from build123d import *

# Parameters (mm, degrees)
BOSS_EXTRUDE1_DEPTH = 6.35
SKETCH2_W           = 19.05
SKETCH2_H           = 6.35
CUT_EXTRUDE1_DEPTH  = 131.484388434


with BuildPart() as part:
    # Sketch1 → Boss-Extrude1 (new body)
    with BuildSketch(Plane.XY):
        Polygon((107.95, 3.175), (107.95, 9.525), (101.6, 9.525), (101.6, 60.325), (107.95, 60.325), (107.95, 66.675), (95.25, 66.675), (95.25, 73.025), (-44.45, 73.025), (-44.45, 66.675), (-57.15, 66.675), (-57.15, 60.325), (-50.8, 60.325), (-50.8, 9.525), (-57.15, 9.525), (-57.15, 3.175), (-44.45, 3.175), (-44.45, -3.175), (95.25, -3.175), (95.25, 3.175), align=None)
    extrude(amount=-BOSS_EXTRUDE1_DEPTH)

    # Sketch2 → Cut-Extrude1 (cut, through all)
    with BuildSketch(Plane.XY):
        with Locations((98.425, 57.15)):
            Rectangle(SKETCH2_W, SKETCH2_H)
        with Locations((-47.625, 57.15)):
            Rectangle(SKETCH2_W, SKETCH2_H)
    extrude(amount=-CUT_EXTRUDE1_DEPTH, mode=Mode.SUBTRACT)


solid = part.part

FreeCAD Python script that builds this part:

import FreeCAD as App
import Part
import Sketcher
from FreeCAD import Vector
Q = App.Units.Quantity

doc = App.newDocument("Part")
body = doc.addObject("PartDesign::Body", "Body")

sketch1 = body.newObject("Sketcher::SketchObject", "Sketch")
sketch1.AttachmentSupport = (doc.getObject("XY_Plane"), [""])
sketch1.MapMode = "FlatFace"
sketch1.addGeometry(Part.LineSegment(Vector(107.95, 3.175, 0), Vector(107.95, 9.525, 0)), False)
sketch1.addGeometry(Part.LineSegment(Vector(107.95, 9.525, 0), Vector(101.6, 9.525, 0)), False)
sketch1.addGeometry(Part.LineSegment(Vector(101.6, 9.525, 0), Vector(101.6, 60.325, 0)), False)
sketch1.addGeometry(Part.LineSegment(Vector(101.6, 60.325, 0), Vector(107.95, 60.325, 0)), False)
sketch1.addGeometry(Part.LineSegment(Vector(107.95, 60.325, 0), Vector(107.95, 66.675, 0)), False)
sketch1.addGeometry(Part.LineSegment(Vector(107.95, 66.675, 0), Vector(95.25, 66.675, 0)), False)
sketch1.addGeometry(Part.LineSegment(Vector(95.25, 66.675, 0), Vector(95.25, 73.025, 0)), False)
sketch1.addGeometry(Part.LineSegment(Vector(95.25, 73.025, 0), Vector(-44.45, 73.025, 0)), False)
sketch1.addGeometry(Part.LineSegment(Vector(-44.45, 73.025, 0), Vector(-44.45, 66.675, 0)), False)
sketch1.addGeometry(Part.LineSegment(Vector(-44.45, 66.675, 0), Vector(-57.15, 66.675, 0)), False)
sketch1.addGeometry(Part.LineSegment(Vector(-57.15, 66.675, 0), Vector(-57.15, 60.325, 0)), False)
sketch1.addGeometry(Part.LineSegment(Vector(-57.15, 60.325, 0), Vector(-50.8, 60.325, 0)), False)
sketch1.addGeometry(Part.LineSegment(Vector(-50.8, 60.325, 0), Vector(-50.8, 9.525, 0)), False)
sketch1.addGeometry(Part.LineSegment(Vector(-50.8, 9.525, 0), Vector(-57.15, 9.525, 0)), False)
sketch1.addGeometry(Part.LineSegment(Vector(-57.15, 9.525, 0), Vector(-57.15, 3.175, 0)), False)
sketch1.addGeometry(Part.LineSegment(Vector(-57.15, 3.175, 0), Vector(-44.45, 3.175, 0)), False)
sketch1.addGeometry(Part.LineSegment(Vector(-44.45, 3.175, 0), Vector(-44.45, -3.175, 0)), False)
sketch1.addGeometry(Part.LineSegment(Vector(-44.45, -3.175, 0), Vector(95.25, -3.175, 0)), False)
sketch1.addGeometry(Part.LineSegment(Vector(95.25, -3.175, 0), Vector(95.25, 3.175, 0)), False)
sketch1.addGeometry(Part.LineSegment(Vector(95.25, 3.175, 0), Vector(107.95, 3.175, 0)), False)
sketch1.addConstraint(Sketcher.Constraint("Coincident", 0, 2, 1, 1))
sketch1.addConstraint(Sketcher.Constraint("Coincident", 1, 2, 2, 1))
sketch1.addConstraint(Sketcher.Constraint("Coincident", 2, 2, 3, 1))
sketch1.addConstraint(Sketcher.Constraint("Coincident", 3, 2, 4, 1))
sketch1.addConstraint(Sketcher.Constraint("Coincident", 4, 2, 5, 1))
sketch1.addConstraint(Sketcher.Constraint("Coincident", 5, 2, 6, 1))
sketch1.addConstraint(Sketcher.Constraint("Coincident", 6, 2, 7, 1))
sketch1.addConstraint(Sketcher.Constraint("Coincident", 7, 2, 8, 1))
sketch1.addConstraint(Sketcher.Constraint("Coincident", 8, 2, 9, 1))
sketch1.addConstraint(Sketcher.Constraint("Coincident", 9, 2, 10, 1))
sketch1.addConstraint(Sketcher.Constraint("Coincident", 10, 2, 11, 1))
sketch1.addConstraint(Sketcher.Constraint("Coincident", 11, 2, 12, 1))
sketch1.addConstraint(Sketcher.Constraint("Coincident", 12, 2, 13, 1))
sketch1.addConstraint(Sketcher.Constraint("Coincident", 13, 2, 14, 1))
sketch1.addConstraint(Sketcher.Constraint("Coincident", 14, 2, 15, 1))
sketch1.addConstraint(Sketcher.Constraint("Coincident", 15, 2, 16, 1))
sketch1.addConstraint(Sketcher.Constraint("Coincident", 16, 2, 17, 1))
sketch1.addConstraint(Sketcher.Constraint("Coincident", 17, 2, 18, 1))
sketch1.addConstraint(Sketcher.Constraint("Coincident", 18, 2, 19, 1))
sketch1.addConstraint(Sketcher.Constraint("Coincident", 19, 2, 0, 1))
sketch1.addConstraint(Sketcher.Constraint("Vertical", 0))
sketch1.addConstraint(Sketcher.Constraint("Horizontal", 1))
sketch1.addConstraint(Sketcher.Constraint("Vertical", 2))
sketch1.addConstraint(Sketcher.Constraint("Horizontal", 3))
sketch1.addConstraint(Sketcher.Constraint("Vertical", 4))
sketch1.addConstraint(Sketcher.Constraint("Horizontal", 5))
sketch1.addConstraint(Sketcher.Constraint("Vertical", 6))
sketch1.addConstraint(Sketcher.Constraint("Horizontal", 7))
sketch1.addConstraint(Sketcher.Constraint("Vertical", 8))
sketch1.addConstraint(Sketcher.Constraint("Horizontal", 9))
sketch1.addConstraint(Sketcher.Constraint("Vertical", 10))
sketch1.addConstraint(Sketcher.Constraint("Horizontal", 11))
sketch1.addConstraint(Sketcher.Constraint("Vertical", 12))
sketch1.addConstraint(Sketcher.Constraint("Horizontal", 13))
sketch1.addConstraint(Sketcher.Constraint("Vertical", 14))
sketch1.addConstraint(Sketcher.Constraint("Horizontal", 15))
sketch1.addConstraint(Sketcher.Constraint("Vertical", 16))
sketch1.addConstraint(Sketcher.Constraint("Horizontal", 17))
sketch1.addConstraint(Sketcher.Constraint("Vertical", 18))
sketch1.addConstraint(Sketcher.Constraint("Horizontal", 19))
sketch1.addConstraint(Sketcher.Constraint("Horizontal", 5, 2, 8, 2))
sketch1.addConstraint(Sketcher.Constraint("Horizontal", 3, 2, 10, 2))
sketch1.addConstraint(Sketcher.Constraint("Horizontal", 1, 2, 12, 2))
sketch1.addConstraint(Sketcher.Constraint("Horizontal", 15, 2, 18, 2))
sketch1.addConstraint(Sketcher.Constraint("Vertical", 0, 2, 3, 2))
sketch1.addConstraint(Sketcher.Constraint("Vertical", 10, 2, 13, 2))
sketch1.addConstraint(Sketcher.Constraint("Vertical", 8, 2, 15, 2))
sketch1.addConstraint(Sketcher.Constraint("Vertical", 6, 2, 17, 2))
sketch1.addConstraint(Sketcher.Constraint("Equal", 5, 9))
sketch1.addConstraint(Sketcher.Constraint("Equal", 3, 11))
sketch1.addConstraint(Sketcher.Constraint("Equal", 13, 0))
sketch1.addConstraint(Sketcher.Constraint("Equal", 0, 4))
sketch1.addConstraint(Sketcher.Constraint("Equal", 4, 6))
sketch1.addConstraint(Sketcher.Constraint("Equal", 14, 16))
sketch1.addConstraint(Sketcher.Constraint("DistanceY", 2, 1, 2, 2, Q("2 in")))
sketch1.addConstraint(Sketcher.Constraint("DistanceX", 5, 2, 5, 1, Q("0.5 in")))
sketch1.addConstraint(Sketcher.Constraint("DistanceX", 7, 2, 7, 1, Q("5.5 in")))
sketch1.addConstraint(Sketcher.Constraint("DistanceX", -1, 1, 1, 2, Q("4 in")))
sketch1.addConstraint(Sketcher.Constraint("DistanceX", 11, 2, -1, 1, Q("2 in")))
sketch1.addConstraint(Sketcher.Constraint("DistanceY", -1, 1, 0, 2, Q("0.375 in")))
pad1 = body.newObject("PartDesign::Pad", "Pad")
pad1.Profile = sketch1
pad1.Length = Q("0.25 in")
pad1.Reversed = True

sketch2 = body.newObject("Sketcher::SketchObject", "Sketch001")
sketch2.AttachmentSupport = (doc.getObject("XY_Plane"), [""])
sketch2.MapMode = "FlatFace"
sketch2.addGeometry(Part.LineSegment(Vector(88.9, 60.325, 0), Vector(88.9, 53.975, 0)), False)
sketch2.addGeometry(Part.LineSegment(Vector(88.9, 53.975, 0), Vector(107.95, 53.975, 0)), False)
sketch2.addGeometry(Part.LineSegment(Vector(107.95, 53.975, 0), Vector(107.95, 60.325, 0)), False)
sketch2.addGeometry(Part.LineSegment(Vector(107.95, 60.325, 0), Vector(88.9, 60.325, 0)), False)
sketch2.addGeometry(Part.LineSegment(Vector(-57.15, 60.325, 0), Vector(-57.15, 53.975, 0)), False)
sketch2.addGeometry(Part.LineSegment(Vector(-57.15, 53.975, 0), Vector(-38.1, 53.975, 0)), False)
sketch2.addGeometry(Part.LineSegment(Vector(-38.1, 53.975, 0), Vector(-38.1, 60.325, 0)), False)
sketch2.addGeometry(Part.LineSegment(Vector(-38.1, 60.325, 0), Vector(-57.15, 60.325, 0)), False)
sketch2.addConstraint(Sketcher.Constraint("Coincident", 0, 2, 1, 1))
sketch2.addConstraint(Sketcher.Constraint("Coincident", 1, 2, 2, 1))
sketch2.addConstraint(Sketcher.Constraint("Coincident", 2, 2, 3, 1))
sketch2.addConstraint(Sketcher.Constraint("Coincident", 3, 2, 0, 1))
sketch2.addConstraint(Sketcher.Constraint("Coincident", 4, 2, 5, 1))
sketch2.addConstraint(Sketcher.Constraint("Coincident", 5, 2, 6, 1))
sketch2.addConstraint(Sketcher.Constraint("Coincident", 6, 2, 7, 1))
sketch2.addConstraint(Sketcher.Constraint("Coincident", 7, 2, 4, 1))
sketch2.addConstraint(Sketcher.Constraint("Vertical", 0))
sketch2.addConstraint(Sketcher.Constraint("Horizontal", 1))
sketch2.addConstraint(Sketcher.Constraint("Vertical", 2))
sketch2.addConstraint(Sketcher.Constraint("Horizontal", 3))
sketch2.addConstraint(Sketcher.Constraint("Vertical", 4))
sketch2.addConstraint(Sketcher.Constraint("Horizontal", 5))
sketch2.addConstraint(Sketcher.Constraint("Vertical", 6))
sketch2.addConstraint(Sketcher.Constraint("Horizontal", 7))
sketch2.addConstraint(Sketcher.Constraint("Horizontal", 1, 2, 4, 2))
sketch2.addConstraint(Sketcher.Constraint("Horizontal", 3, 2, 6, 2))
sketch2.addConstraint(Sketcher.Constraint("Equal", 3, 5))
sketch2.addConstraint(Sketcher.Constraint("DistanceX", 5, 2, 0, 2, Q("5 in")))
sketch2.addConstraint(Sketcher.Constraint("DistanceX", 1, 1, 1, 2, Q("0.75 in")))
sketch2.addConstraint(Sketcher.Constraint("DistanceY", 0, 2, 0, 1, Q("0.25 in")))
sketch2.addConstraint(Sketcher.Constraint("DistanceX", -1, 1, 0, 2, Q("3.5 in")))
sketch2.addConstraint(Sketcher.Constraint("DistanceY", -1, 1, 0, 2, Q("2.125 in")))
pocket1 = body.newObject("PartDesign::Pocket", "Pocket")
pocket1.Profile = sketch2
pocket1.Type = "ThroughAll"

doc.recompute()
